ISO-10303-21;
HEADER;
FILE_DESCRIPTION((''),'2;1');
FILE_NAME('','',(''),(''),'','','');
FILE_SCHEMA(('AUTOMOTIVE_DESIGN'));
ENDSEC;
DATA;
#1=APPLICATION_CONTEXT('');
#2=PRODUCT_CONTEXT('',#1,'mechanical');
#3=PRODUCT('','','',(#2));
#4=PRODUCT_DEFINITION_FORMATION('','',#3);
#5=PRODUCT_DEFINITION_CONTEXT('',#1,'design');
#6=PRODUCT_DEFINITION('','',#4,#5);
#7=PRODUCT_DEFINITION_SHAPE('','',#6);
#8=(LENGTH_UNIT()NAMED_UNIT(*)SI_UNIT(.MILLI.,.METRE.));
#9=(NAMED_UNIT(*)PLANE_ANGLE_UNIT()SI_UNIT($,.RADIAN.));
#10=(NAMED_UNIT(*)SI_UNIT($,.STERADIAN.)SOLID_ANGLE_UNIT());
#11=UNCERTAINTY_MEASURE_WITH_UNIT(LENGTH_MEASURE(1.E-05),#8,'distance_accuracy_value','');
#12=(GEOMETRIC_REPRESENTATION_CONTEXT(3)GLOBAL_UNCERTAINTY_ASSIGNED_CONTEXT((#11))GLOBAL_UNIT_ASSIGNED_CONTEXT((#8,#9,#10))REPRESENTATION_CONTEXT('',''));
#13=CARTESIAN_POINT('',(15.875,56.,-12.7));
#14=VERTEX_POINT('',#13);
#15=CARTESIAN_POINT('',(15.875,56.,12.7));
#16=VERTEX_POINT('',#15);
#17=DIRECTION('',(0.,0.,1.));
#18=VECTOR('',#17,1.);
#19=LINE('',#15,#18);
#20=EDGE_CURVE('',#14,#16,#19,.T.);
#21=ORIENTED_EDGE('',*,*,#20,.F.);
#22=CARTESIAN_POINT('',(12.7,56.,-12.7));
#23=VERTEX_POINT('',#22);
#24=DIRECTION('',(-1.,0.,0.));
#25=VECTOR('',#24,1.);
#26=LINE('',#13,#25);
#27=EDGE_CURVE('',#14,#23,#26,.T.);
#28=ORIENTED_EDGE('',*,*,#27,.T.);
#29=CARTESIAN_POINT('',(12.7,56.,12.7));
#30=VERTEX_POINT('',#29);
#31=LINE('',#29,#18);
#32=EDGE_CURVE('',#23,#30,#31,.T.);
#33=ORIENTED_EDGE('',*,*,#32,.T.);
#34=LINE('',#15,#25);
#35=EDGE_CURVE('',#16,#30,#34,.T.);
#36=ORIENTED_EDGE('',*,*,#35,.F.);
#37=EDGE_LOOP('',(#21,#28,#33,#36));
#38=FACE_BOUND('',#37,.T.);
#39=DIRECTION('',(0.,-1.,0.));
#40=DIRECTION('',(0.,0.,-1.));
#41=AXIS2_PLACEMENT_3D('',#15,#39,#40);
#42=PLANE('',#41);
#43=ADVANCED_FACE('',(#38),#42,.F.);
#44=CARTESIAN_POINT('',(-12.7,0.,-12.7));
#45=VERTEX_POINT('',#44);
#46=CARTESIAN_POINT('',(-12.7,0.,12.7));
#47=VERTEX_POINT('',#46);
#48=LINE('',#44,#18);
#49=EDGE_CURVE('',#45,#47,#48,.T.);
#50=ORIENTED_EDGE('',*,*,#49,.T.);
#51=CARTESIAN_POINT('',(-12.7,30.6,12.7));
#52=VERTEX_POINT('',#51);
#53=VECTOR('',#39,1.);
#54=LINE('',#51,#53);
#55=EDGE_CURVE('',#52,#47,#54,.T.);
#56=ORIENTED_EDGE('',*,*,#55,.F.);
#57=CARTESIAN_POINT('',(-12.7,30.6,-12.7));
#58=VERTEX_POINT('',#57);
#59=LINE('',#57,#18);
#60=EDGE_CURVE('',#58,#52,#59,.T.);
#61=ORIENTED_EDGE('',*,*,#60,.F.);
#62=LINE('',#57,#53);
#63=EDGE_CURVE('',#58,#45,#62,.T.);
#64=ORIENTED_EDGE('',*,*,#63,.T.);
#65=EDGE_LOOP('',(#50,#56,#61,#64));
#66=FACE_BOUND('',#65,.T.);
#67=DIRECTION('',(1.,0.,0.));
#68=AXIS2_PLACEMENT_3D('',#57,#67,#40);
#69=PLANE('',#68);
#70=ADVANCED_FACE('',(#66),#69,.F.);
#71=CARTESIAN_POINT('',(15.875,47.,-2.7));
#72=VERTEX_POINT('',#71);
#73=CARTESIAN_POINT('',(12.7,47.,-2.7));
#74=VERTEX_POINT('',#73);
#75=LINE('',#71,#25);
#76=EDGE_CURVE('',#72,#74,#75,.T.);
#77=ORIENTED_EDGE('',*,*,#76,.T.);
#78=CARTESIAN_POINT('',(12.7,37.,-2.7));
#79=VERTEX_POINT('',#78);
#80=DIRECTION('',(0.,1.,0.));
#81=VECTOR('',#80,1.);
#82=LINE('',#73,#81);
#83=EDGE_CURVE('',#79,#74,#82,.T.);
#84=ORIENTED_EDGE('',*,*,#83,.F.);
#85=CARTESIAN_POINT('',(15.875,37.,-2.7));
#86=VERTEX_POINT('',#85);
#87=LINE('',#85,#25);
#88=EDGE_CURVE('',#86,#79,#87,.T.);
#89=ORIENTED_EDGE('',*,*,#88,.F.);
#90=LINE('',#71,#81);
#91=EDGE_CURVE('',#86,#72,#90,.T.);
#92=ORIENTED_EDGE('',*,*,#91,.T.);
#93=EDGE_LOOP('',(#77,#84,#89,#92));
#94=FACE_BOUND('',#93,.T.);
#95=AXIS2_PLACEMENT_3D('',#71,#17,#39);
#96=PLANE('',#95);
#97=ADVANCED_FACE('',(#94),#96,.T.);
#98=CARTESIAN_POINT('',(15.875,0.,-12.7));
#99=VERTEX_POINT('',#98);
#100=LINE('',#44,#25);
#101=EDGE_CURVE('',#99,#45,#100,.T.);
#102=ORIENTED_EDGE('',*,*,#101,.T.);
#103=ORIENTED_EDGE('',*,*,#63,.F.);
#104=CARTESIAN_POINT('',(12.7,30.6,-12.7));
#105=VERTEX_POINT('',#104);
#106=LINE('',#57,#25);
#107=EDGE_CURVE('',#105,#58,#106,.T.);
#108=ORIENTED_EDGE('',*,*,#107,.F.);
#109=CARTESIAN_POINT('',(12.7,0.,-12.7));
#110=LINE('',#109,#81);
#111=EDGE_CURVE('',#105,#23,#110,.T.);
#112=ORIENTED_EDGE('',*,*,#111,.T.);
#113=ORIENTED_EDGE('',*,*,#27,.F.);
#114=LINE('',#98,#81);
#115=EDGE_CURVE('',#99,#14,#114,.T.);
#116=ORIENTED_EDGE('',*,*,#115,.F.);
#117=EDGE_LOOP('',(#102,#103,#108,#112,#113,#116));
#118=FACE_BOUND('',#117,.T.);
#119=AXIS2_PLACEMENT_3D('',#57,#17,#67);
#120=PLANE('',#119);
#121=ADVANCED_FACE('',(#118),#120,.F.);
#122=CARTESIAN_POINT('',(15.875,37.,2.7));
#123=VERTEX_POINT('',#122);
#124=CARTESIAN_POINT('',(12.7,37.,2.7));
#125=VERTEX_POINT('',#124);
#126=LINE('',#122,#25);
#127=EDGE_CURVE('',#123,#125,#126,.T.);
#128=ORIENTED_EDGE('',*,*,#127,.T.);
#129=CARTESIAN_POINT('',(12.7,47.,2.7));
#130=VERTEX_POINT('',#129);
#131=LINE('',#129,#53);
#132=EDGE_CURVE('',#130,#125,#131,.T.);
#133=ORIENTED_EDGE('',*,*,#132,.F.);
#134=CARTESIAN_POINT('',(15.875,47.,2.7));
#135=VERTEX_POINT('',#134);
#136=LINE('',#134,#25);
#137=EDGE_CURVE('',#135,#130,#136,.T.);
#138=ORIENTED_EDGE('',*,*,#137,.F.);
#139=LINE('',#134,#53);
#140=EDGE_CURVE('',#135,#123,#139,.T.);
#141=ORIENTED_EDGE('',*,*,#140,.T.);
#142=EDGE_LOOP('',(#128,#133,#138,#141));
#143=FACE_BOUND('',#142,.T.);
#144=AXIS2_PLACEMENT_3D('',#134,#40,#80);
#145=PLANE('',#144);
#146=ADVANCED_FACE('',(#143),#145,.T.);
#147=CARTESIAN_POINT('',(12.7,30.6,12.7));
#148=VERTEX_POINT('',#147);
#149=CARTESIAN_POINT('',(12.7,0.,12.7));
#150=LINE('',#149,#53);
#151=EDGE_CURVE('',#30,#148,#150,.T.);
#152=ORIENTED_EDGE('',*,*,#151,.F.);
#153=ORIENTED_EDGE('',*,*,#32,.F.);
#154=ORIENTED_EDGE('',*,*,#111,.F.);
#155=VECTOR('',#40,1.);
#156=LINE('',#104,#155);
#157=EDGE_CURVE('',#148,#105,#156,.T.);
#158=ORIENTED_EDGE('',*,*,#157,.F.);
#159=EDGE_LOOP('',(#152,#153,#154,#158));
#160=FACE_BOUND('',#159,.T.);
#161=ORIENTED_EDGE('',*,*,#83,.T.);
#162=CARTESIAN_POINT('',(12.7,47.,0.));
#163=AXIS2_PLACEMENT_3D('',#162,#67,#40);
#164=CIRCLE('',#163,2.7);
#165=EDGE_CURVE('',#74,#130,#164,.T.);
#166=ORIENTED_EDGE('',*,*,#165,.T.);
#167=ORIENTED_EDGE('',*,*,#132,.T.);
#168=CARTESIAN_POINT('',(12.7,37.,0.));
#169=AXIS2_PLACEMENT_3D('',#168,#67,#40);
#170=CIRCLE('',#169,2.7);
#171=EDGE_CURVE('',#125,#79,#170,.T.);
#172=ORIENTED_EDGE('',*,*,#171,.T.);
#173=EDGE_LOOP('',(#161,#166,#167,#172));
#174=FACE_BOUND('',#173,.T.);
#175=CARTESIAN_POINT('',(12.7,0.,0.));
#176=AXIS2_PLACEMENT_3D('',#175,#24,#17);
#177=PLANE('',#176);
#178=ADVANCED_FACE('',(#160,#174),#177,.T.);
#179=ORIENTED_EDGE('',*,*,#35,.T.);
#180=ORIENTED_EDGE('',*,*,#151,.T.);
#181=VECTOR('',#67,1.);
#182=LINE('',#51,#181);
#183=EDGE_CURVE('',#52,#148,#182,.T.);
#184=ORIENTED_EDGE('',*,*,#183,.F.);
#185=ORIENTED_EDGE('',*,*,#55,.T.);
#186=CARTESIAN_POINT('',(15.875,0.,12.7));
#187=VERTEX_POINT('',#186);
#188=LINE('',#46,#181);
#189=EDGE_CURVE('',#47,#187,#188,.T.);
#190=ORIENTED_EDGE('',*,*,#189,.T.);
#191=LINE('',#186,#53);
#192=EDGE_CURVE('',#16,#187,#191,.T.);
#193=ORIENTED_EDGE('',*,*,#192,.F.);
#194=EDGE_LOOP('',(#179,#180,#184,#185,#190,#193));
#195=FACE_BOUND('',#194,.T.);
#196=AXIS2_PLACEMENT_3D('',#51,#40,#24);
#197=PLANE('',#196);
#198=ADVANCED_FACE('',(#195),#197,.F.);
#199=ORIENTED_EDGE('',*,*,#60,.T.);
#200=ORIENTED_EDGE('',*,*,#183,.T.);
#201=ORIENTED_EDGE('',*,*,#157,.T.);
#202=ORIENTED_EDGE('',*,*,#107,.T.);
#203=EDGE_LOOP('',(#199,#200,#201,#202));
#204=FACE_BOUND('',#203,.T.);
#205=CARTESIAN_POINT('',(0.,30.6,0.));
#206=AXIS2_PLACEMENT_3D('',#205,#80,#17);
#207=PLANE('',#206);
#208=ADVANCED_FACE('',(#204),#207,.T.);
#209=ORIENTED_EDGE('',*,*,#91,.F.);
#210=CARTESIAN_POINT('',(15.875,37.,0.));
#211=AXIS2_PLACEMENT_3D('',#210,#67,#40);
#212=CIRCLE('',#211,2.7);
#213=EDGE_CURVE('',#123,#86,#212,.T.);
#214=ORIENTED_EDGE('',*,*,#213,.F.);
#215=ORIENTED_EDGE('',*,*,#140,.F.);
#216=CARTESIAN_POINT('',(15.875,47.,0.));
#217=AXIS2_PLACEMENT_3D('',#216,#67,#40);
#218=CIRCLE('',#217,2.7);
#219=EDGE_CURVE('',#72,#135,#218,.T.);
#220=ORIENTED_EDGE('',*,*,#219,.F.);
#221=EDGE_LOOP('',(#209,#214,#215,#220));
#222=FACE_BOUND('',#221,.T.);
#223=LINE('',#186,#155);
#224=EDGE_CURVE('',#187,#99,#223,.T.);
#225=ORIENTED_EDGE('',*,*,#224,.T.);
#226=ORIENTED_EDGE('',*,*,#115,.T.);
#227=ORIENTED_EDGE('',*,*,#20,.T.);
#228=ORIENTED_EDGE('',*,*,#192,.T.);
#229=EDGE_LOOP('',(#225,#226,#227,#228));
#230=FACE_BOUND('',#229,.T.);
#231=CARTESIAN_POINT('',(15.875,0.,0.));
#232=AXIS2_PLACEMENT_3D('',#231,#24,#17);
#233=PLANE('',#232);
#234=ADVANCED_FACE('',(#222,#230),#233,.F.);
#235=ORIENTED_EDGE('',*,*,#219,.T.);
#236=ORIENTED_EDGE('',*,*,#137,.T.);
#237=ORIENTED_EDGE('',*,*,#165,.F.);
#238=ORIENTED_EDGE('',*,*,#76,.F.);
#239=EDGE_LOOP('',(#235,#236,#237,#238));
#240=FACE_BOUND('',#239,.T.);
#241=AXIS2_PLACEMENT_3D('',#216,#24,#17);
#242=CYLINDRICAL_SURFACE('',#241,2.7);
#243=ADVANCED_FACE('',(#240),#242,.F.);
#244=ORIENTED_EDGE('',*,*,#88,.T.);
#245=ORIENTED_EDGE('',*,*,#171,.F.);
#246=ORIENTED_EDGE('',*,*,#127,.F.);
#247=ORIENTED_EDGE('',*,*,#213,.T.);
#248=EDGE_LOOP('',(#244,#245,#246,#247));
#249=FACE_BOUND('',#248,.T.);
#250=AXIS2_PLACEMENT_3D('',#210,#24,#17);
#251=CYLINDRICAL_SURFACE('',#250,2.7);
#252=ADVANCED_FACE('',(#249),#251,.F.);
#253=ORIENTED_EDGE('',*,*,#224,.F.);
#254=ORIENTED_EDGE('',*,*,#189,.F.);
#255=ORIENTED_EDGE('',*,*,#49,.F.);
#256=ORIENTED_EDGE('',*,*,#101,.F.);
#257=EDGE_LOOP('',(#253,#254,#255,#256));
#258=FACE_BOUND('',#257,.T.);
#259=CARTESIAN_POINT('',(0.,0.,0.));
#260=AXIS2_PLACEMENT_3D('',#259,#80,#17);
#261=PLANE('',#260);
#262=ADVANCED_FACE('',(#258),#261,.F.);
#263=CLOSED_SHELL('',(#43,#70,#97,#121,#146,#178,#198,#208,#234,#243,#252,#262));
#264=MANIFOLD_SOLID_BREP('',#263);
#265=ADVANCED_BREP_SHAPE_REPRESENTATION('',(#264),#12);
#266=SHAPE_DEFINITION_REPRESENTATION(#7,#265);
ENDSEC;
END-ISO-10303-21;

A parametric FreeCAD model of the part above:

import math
import FreeCAD as App
import Part
import Sketcher
from FreeCAD import Vector
Q = App.Units.Quantity


def add_polygon(sketch, points):
    """Adds a closed chain of lines whose ends are joined by coincident constraints."""
    first, n = sketch.GeometryCount, len(points)
    for a, b in zip(points, points[1:] + points[:1]):
        sketch.addGeometry(Part.LineSegment(App.Vector(*a, 0), App.Vector(*b, 0)), False)
    for i in range(n):
        sketch.addConstraint(Sketcher.Constraint("Coincident", first + i, 2, first + (i + 1) % n, 1))

doc = App.newDocument("Part")
body = doc.addObject("PartDesign::Body", "Body")

# Sketch on XZ plane
sketch1 = doc.addObject("Sketcher::SketchObject", "Sketch")
body.addObject(sketch1)
sketch1.AttachmentSupport = (doc.XZ_Plane, [""])
sketch1.MapMode = "FlatFace"
add_polygon(sketch1, [(-13, -13), (-13, 13), (13, 13), (13, -13)])  # lines 0-3
sketch1.addConstraint([
    Sketcher.Constraint("Vertical", 0),
    Sketcher.Constraint("Horizontal", 1),
    Sketcher.Constraint("Vertical", 2),
    Sketcher.Constraint("Horizontal", 3),
    Sketcher.Constraint("Symmetric", 0, 2, 2, 2, -1, 1),
    Sketcher.Constraint("Equal", 3, 0),
    Sketcher.Constraint("DistanceX", 1, 1, 1, 2, Q("25.4 mm")),
])
pad1 = doc.addObject("PartDesign::Pad", "Pad")
body.addObject(pad1)
pad1.Profile = sketch1
pad1.Length = 30.6
pad1.Reversed = True

# Sketch on YZ plane
sketch2 = doc.addObject("Sketcher::SketchObject", "Sketch001")
body.addObject(sketch2)
sketch2.AttachmentSupport = (doc.YZ_Plane, [""])
sketch2.MapMode = "FlatFace"
sketch2.AttachmentOffset = App.Placement(Vector(0, 0, 12.7), App.Rotation())
add_polygon(sketch2, [(56, 12.7), (0, 12.7), (0, -12.7), (56, -12.7)])  # lines 0-3
sketch2.addGeometry(Part.ArcOfCircle(Part.Circle(Vector(47, 0, 0), Vector(0, 0, 1), 2.7), math.radians(-90), math.radians(90)), False)  # 4
sketch2.addGeometry(Part.LineSegment(Vector(47, -2.7, 0), Vector(37, -2.7, 0)), False)  # 5
sketch2.addGeometry(Part.ArcOfCircle(Part.Circle(Vector(37, 0, 0), Vector(0, 0, 1), 2.7), math.radians(90), math.radians(270)), False)  # 6
sketch2.addGeometry(Part.LineSegment(Vector(37, 2.7, 0), Vector(47, 2.7, 0)), False)  # 7
sketch2.addConstraint([
    Sketcher.Constraint("Tangent", 4, 1, 5, 1),
    Sketcher.Constraint("Tangent", 5, 2, 6, 2),
    Sketcher.Constraint("Tangent", 6, 1, 7, 1),
    Sketcher.Constraint("Tangent", 7, 2, 4, 2),
    Sketcher.Constraint("Horizontal", 0),
    Sketcher.Constraint("Vertical", 1),
    Sketcher.Constraint("Horizontal", 2),
    Sketcher.Constraint("Vertical", 3),
    Sketcher.Constraint("Horizontal", 5),
    Sketcher.Constraint("Horizontal", 7),
    Sketcher.Constraint("Symmetric", 0, 2, 1, 2, -1, 1),
    Sketcher.Constraint("PointOnObject", 4, 3, -1),
    Sketcher.Constraint("Radius", 4, Q("2.7 mm")),
    Sketcher.Constraint("DistanceX", 0, 2, 0, 1, Q("56 mm")),
    Sketcher.Constraint("DistanceX", 5, 2, 5, 1, Q("10 mm")),
    Sketcher.Constraint("DistanceY", 1, 2, 1, 1, Q("25.4 mm")),
    Sketcher.Constraint("DistanceX", -1, 1, 4, 3, Q("47 mm")),
])
pad2 = doc.addObject("PartDesign::Pad", "Pad001")
body.addObject(pad2)
pad2.Profile = sketch2
pad2.Length = 3.175

doc.recompute()
